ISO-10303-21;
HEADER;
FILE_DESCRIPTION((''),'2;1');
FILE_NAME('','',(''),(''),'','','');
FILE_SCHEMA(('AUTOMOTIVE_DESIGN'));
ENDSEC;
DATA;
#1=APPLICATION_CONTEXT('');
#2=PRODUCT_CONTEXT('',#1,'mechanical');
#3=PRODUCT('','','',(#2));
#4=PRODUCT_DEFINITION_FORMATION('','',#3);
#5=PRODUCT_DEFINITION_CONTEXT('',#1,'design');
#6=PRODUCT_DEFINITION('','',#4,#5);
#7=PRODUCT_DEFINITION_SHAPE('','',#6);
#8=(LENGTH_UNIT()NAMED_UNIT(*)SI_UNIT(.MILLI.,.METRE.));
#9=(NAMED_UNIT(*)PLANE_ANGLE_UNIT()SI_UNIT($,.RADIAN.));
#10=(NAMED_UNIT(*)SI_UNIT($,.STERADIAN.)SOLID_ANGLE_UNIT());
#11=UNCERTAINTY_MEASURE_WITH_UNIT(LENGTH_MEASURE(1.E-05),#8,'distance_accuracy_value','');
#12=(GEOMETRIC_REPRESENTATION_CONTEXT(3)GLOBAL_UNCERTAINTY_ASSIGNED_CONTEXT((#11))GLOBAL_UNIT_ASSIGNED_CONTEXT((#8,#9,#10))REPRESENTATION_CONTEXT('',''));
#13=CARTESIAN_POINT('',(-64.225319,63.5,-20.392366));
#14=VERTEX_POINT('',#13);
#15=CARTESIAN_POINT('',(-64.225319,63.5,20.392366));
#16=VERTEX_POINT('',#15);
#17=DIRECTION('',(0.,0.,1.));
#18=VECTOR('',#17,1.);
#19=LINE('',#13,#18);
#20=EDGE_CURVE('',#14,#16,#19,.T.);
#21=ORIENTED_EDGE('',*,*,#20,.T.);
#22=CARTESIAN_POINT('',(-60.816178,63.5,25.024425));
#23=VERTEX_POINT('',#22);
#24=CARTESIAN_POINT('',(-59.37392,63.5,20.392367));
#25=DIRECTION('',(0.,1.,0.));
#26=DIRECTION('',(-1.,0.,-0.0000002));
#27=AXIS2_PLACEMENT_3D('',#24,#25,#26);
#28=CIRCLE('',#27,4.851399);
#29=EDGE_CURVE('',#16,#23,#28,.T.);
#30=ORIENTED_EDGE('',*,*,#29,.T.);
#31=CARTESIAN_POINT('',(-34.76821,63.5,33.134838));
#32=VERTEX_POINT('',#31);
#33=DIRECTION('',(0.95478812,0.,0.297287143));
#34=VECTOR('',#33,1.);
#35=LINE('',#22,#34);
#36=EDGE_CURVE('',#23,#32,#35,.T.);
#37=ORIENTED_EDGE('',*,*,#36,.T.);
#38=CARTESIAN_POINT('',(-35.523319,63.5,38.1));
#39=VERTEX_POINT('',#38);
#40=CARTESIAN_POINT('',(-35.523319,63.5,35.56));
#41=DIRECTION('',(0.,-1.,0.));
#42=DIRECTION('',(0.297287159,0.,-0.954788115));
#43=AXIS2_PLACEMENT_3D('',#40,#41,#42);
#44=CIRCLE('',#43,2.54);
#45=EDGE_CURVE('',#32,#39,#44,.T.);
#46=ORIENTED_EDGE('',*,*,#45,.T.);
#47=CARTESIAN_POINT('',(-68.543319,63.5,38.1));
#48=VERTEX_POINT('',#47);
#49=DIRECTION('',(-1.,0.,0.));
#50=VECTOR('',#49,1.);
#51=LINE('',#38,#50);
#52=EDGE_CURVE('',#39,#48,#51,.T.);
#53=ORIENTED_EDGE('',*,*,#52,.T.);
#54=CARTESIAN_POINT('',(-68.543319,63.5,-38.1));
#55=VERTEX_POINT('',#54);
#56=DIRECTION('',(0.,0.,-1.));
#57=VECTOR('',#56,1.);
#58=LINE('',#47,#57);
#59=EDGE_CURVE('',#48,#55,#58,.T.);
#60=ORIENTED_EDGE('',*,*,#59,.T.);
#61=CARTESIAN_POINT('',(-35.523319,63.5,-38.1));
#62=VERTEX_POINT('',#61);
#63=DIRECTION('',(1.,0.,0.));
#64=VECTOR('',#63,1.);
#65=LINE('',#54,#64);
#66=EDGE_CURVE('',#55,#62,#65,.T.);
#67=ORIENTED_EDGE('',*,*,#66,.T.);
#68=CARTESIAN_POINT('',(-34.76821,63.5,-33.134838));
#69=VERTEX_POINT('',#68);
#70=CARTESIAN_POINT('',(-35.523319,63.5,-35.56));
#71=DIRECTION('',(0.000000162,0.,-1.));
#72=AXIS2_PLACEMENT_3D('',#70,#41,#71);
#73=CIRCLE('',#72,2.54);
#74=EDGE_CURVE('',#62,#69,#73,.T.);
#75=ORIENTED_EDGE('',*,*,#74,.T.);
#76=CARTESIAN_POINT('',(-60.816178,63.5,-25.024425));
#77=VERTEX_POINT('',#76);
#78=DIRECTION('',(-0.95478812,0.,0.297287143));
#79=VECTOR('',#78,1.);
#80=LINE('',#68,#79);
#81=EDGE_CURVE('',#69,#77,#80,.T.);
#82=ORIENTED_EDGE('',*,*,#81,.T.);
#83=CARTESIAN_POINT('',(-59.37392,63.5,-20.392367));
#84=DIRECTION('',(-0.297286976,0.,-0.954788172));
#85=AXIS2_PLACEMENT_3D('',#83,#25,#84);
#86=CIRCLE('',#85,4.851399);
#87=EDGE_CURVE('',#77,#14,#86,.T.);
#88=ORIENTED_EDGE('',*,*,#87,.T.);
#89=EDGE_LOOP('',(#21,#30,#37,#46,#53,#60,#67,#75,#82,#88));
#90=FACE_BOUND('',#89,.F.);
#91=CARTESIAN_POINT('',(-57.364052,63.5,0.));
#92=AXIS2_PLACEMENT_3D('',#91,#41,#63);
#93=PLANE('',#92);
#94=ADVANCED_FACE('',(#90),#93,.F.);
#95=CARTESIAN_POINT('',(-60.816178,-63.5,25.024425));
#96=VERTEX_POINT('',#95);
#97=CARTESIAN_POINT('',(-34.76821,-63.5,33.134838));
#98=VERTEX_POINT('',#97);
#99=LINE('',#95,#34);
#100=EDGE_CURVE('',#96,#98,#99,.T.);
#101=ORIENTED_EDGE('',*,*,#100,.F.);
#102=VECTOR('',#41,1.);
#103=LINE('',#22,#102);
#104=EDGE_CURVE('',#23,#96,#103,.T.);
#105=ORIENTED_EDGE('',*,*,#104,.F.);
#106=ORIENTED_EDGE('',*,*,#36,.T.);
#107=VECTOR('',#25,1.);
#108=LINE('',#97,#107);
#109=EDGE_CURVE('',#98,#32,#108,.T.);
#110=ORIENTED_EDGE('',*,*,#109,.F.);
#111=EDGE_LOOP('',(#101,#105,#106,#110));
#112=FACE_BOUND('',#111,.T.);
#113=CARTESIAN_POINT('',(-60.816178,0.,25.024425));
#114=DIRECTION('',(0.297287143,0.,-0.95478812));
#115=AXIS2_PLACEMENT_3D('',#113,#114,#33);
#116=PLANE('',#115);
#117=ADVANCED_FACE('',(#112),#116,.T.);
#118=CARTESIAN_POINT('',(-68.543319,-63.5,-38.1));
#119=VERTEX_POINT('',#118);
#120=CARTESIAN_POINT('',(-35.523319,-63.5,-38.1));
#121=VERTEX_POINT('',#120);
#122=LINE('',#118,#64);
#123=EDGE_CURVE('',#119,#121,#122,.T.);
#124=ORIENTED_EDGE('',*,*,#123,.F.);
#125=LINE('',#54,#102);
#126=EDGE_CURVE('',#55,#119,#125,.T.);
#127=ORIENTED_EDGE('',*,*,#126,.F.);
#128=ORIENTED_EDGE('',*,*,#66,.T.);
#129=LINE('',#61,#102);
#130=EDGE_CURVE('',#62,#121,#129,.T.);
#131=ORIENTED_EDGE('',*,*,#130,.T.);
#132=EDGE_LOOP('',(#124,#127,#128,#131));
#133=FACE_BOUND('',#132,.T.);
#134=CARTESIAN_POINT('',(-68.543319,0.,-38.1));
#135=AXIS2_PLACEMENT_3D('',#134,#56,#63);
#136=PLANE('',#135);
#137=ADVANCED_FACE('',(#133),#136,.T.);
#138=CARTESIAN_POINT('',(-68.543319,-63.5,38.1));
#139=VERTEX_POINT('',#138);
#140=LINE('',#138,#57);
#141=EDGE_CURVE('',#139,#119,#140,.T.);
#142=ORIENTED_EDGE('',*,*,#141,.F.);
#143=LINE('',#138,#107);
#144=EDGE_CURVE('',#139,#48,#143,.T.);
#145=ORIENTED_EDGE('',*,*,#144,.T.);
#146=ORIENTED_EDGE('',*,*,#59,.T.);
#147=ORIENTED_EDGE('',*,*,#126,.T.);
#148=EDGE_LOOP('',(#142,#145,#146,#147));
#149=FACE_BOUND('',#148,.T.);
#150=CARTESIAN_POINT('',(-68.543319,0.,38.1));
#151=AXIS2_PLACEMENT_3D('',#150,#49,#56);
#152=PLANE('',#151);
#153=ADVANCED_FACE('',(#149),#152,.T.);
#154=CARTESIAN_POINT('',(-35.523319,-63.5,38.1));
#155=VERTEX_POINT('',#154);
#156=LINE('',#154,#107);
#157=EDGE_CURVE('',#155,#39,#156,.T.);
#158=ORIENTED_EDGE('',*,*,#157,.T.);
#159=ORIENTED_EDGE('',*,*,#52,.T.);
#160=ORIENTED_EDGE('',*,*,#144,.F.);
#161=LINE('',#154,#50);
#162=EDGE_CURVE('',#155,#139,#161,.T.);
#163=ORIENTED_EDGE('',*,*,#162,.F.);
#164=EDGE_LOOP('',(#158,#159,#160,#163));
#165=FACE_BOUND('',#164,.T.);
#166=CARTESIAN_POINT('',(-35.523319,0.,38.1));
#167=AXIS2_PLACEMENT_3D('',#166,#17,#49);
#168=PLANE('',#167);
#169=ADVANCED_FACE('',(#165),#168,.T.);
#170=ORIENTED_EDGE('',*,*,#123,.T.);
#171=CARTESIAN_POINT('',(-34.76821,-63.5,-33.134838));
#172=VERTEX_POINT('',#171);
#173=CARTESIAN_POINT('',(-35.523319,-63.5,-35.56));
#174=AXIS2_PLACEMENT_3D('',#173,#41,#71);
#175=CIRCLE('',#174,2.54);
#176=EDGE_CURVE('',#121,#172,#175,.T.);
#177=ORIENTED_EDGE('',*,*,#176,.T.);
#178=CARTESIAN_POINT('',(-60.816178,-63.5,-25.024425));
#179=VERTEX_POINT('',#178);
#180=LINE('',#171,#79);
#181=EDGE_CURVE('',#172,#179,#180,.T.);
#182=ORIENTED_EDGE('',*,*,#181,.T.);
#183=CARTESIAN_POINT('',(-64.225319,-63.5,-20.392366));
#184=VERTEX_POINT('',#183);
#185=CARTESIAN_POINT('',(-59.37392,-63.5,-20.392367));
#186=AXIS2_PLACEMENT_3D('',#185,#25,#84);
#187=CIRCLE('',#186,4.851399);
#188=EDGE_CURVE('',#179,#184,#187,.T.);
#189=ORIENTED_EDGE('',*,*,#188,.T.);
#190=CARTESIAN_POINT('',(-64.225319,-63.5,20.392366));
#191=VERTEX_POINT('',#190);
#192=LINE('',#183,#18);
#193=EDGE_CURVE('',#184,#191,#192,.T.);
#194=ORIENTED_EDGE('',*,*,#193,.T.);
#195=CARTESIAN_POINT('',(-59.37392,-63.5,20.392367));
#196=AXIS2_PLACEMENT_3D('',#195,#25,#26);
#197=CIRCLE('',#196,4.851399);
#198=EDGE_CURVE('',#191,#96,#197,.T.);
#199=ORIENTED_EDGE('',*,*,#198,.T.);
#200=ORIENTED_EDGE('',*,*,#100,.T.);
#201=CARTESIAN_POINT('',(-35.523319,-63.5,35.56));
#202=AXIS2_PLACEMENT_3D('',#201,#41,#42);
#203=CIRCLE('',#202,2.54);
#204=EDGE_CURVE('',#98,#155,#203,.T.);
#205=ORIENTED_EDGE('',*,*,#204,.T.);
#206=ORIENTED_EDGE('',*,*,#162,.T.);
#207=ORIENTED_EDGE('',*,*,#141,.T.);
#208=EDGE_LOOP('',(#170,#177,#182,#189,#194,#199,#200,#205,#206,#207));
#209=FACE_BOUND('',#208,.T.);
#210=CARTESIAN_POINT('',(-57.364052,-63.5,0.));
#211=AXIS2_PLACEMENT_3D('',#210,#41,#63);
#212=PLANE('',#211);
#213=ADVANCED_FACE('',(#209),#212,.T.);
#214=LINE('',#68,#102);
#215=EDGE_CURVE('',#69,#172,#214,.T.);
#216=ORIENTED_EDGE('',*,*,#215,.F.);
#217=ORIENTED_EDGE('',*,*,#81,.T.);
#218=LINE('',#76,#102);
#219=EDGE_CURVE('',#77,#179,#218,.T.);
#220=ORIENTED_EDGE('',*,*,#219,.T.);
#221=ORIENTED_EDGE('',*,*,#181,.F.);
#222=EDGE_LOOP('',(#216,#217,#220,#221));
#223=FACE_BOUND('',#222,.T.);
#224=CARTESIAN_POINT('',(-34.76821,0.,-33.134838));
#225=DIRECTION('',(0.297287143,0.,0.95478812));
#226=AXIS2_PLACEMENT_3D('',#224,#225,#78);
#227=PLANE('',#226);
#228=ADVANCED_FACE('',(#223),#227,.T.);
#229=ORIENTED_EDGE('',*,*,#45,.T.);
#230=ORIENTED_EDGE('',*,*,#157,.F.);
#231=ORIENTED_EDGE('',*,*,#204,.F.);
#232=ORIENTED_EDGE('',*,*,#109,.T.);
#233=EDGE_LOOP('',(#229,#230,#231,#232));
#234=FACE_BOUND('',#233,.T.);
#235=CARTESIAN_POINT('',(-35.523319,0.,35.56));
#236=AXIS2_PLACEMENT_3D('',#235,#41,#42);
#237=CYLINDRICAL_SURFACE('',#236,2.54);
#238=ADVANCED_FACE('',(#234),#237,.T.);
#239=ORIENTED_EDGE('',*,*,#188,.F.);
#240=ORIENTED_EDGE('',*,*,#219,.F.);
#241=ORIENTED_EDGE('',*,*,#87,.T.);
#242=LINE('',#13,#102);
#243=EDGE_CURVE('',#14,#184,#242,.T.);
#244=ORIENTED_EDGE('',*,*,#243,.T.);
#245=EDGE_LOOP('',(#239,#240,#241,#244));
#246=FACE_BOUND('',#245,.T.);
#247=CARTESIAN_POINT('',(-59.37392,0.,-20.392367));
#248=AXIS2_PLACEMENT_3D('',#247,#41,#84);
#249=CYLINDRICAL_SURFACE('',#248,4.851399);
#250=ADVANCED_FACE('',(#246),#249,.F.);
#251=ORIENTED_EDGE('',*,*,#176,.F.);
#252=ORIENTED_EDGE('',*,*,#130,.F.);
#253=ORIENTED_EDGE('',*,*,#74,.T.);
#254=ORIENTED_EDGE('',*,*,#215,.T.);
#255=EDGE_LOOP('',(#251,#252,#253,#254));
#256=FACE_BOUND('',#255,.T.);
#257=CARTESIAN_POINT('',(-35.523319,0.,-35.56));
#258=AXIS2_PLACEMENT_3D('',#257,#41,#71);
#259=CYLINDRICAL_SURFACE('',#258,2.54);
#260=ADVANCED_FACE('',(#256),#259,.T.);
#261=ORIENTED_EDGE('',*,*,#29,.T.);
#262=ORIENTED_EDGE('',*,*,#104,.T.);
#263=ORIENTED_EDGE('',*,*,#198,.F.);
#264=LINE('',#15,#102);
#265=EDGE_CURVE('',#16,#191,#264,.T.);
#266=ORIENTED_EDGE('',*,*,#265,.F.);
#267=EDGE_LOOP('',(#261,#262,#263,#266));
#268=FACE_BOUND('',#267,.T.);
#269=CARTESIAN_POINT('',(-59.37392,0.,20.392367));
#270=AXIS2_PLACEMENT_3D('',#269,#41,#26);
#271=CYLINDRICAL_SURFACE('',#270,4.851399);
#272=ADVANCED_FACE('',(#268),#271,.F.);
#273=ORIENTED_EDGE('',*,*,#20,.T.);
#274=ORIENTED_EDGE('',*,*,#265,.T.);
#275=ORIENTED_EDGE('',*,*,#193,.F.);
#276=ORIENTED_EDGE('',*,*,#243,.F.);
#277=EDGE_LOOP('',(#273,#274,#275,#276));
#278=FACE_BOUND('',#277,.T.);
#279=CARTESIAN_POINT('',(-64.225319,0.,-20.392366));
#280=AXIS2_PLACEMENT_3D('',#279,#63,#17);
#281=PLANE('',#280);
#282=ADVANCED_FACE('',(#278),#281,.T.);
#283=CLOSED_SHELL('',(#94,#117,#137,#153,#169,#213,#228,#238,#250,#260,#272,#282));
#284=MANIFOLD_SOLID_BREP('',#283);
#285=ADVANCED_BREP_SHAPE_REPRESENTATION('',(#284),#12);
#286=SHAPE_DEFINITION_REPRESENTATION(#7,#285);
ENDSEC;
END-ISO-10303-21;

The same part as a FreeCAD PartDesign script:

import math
import FreeCAD as App
import Part
import Sketcher
Q = App.Units.Quantity

doc = App.newDocument("Part")
params = doc.addObject("Spreadsheet::Sheet", "Params")
for row, (alias, value) in enumerate([
    ("sketch1_radius", "0.1 in"),
    ("sketch1_height", "3 in"),
    ("sketch1_width", "1.3 in"),
    ("sketch1_radius2", "0.1909999 in"),
    ("pad1_length", "5 in"),
], start=1):
    params.set(f"A{row}", alias)
    params.set(f"B{row}", "=" + value)
    params.setAlias(f"B{row}", alias)

body = doc.addObject("PartDesign::Body", "Body")

# Sketch on XZ plane
sketch1 = body.newObject("Sketcher::SketchObject", "Sketch")
sketch1.AttachmentSupport = (doc.getObject("XZ_Plane"), [""])
sketch1.MapMode = "FlatFace"
sketch1.addGeometry([
    Part.LineSegment(App.Vector(-68.5, 38.1, 0), App.Vector(-68.5, -38.1, 0)),  # 0
    Part.LineSegment(App.Vector(-68.5, -38.1, 0), App.Vector(-35.5, -38.1, 0)),  # 1
    Part.ArcOfCircle(Part.Circle(App.Vector(-35.5, -35.6, 0), App.Vector(0, 0, 1), 2.5), math.radians(-90), math.radians(73)),  # 2
    Part.LineSegment(App.Vector(-34.8, -33.1, 0), App.Vector(-60.8, -25, 0)),  # 3
    Part.ArcOfCircle(Part.Circle(App.Vector(-59.4, -20.4, 0), App.Vector(0, 0, 1), 4.9), math.radians(180), math.radians(253)),  # 4
    Part.LineSegment(App.Vector(-64.2, -20.4, 0), App.Vector(-64.2, 20.4, 0)),  # 5
    Part.ArcOfCircle(Part.Circle(App.Vector(-59.4, 20.4, 0), App.Vector(0, 0, 1), 4.9), math.radians(107), math.radians(180)),  # 6
    Part.LineSegment(App.Vector(-60.8, 25, 0), App.Vector(-34.8, 33.1, 0)),  # 7
    Part.ArcOfCircle(Part.Circle(App.Vector(-35.5, 35.6, 0), App.Vector(0, 0, 1), 2.5), math.radians(-73), math.radians(90)),  # 8
    Part.LineSegment(App.Vector(-35.5, 38.1, 0), App.Vector(-68.5, 38.1, 0)),  # 9
], False)
sketch1.addConstraint([
    Sketcher.Constraint("Coincident", 0, 2, 1, 1),
    Sketcher.Constraint("Tangent", 1, 2, 2, 1),
    Sketcher.Constraint("Tangent", 2, 2, 3, 1),
    Sketcher.Constraint("Tangent", 3, 2, 4, 2),
    Sketcher.Constraint("Tangent", 4, 1, 5, 1),
    Sketcher.Constraint("Tangent", 5, 2, 6, 2),
    Sketcher.Constraint("Tangent", 6, 1, 7, 1),
    Sketcher.Constraint("Tangent", 7, 2, 8, 1),
    Sketcher.Constraint("Tangent", 8, 2, 9, 1),
    Sketcher.Constraint("Coincident", 9, 2, 0, 1),
    Sketcher.Constraint("Vertical", 0),
    Sketcher.Constraint("Horizontal", 1),
    Sketcher.Constraint("Vertical", 5),
    Sketcher.Constraint("Horizontal", 9),
    Sketcher.Constraint("Equal", 4, 6),
    Sketcher.Constraint("Equal", 2, 8),
    Sketcher.Constraint("Symmetric", 2, 3, 8, 3, -1),
    Sketcher.Constraint("Vertical", 3, 2, 6, 1),
    Sketcher.Constraint("Radius", 2, Q("0.1 in")),
    Sketcher.Constraint("DistanceY", 0, 2, 0, 1, Q("3 in")),
    Sketcher.Constraint("DistanceX", 1, 1, 1, 2, Q("1.3 in")),
    Sketcher.Constraint("Radius", 4, Q("0.1909999 in")),
    Sketcher.Constraint("DistanceX", 0, 2, 4, 1, Q("0.17 in")),
    Sketcher.Constraint("DistanceY", 5, 1, 5, 2, 40.784732),
    Sketcher.Constraint("DistanceX", 2, 3, -1, 1, 35.523319),
])
sketch1.setExpression("Constraints[18]", "Params.sketch1_radius")
sketch1.setExpression("Constraints[19]", "Params.sketch1_height")
sketch1.setExpression("Constraints[20]", "Params.sketch1_width")
sketch1.setExpression("Constraints[21]", "Params.sketch1_radius2")
pad1 = body.newObject("PartDesign::Pad", "Pad")
pad1.Profile = sketch1
pad1.setExpression("Length", "Params.pad1_length")
pad1.Midplane = True

doc.recompute()
